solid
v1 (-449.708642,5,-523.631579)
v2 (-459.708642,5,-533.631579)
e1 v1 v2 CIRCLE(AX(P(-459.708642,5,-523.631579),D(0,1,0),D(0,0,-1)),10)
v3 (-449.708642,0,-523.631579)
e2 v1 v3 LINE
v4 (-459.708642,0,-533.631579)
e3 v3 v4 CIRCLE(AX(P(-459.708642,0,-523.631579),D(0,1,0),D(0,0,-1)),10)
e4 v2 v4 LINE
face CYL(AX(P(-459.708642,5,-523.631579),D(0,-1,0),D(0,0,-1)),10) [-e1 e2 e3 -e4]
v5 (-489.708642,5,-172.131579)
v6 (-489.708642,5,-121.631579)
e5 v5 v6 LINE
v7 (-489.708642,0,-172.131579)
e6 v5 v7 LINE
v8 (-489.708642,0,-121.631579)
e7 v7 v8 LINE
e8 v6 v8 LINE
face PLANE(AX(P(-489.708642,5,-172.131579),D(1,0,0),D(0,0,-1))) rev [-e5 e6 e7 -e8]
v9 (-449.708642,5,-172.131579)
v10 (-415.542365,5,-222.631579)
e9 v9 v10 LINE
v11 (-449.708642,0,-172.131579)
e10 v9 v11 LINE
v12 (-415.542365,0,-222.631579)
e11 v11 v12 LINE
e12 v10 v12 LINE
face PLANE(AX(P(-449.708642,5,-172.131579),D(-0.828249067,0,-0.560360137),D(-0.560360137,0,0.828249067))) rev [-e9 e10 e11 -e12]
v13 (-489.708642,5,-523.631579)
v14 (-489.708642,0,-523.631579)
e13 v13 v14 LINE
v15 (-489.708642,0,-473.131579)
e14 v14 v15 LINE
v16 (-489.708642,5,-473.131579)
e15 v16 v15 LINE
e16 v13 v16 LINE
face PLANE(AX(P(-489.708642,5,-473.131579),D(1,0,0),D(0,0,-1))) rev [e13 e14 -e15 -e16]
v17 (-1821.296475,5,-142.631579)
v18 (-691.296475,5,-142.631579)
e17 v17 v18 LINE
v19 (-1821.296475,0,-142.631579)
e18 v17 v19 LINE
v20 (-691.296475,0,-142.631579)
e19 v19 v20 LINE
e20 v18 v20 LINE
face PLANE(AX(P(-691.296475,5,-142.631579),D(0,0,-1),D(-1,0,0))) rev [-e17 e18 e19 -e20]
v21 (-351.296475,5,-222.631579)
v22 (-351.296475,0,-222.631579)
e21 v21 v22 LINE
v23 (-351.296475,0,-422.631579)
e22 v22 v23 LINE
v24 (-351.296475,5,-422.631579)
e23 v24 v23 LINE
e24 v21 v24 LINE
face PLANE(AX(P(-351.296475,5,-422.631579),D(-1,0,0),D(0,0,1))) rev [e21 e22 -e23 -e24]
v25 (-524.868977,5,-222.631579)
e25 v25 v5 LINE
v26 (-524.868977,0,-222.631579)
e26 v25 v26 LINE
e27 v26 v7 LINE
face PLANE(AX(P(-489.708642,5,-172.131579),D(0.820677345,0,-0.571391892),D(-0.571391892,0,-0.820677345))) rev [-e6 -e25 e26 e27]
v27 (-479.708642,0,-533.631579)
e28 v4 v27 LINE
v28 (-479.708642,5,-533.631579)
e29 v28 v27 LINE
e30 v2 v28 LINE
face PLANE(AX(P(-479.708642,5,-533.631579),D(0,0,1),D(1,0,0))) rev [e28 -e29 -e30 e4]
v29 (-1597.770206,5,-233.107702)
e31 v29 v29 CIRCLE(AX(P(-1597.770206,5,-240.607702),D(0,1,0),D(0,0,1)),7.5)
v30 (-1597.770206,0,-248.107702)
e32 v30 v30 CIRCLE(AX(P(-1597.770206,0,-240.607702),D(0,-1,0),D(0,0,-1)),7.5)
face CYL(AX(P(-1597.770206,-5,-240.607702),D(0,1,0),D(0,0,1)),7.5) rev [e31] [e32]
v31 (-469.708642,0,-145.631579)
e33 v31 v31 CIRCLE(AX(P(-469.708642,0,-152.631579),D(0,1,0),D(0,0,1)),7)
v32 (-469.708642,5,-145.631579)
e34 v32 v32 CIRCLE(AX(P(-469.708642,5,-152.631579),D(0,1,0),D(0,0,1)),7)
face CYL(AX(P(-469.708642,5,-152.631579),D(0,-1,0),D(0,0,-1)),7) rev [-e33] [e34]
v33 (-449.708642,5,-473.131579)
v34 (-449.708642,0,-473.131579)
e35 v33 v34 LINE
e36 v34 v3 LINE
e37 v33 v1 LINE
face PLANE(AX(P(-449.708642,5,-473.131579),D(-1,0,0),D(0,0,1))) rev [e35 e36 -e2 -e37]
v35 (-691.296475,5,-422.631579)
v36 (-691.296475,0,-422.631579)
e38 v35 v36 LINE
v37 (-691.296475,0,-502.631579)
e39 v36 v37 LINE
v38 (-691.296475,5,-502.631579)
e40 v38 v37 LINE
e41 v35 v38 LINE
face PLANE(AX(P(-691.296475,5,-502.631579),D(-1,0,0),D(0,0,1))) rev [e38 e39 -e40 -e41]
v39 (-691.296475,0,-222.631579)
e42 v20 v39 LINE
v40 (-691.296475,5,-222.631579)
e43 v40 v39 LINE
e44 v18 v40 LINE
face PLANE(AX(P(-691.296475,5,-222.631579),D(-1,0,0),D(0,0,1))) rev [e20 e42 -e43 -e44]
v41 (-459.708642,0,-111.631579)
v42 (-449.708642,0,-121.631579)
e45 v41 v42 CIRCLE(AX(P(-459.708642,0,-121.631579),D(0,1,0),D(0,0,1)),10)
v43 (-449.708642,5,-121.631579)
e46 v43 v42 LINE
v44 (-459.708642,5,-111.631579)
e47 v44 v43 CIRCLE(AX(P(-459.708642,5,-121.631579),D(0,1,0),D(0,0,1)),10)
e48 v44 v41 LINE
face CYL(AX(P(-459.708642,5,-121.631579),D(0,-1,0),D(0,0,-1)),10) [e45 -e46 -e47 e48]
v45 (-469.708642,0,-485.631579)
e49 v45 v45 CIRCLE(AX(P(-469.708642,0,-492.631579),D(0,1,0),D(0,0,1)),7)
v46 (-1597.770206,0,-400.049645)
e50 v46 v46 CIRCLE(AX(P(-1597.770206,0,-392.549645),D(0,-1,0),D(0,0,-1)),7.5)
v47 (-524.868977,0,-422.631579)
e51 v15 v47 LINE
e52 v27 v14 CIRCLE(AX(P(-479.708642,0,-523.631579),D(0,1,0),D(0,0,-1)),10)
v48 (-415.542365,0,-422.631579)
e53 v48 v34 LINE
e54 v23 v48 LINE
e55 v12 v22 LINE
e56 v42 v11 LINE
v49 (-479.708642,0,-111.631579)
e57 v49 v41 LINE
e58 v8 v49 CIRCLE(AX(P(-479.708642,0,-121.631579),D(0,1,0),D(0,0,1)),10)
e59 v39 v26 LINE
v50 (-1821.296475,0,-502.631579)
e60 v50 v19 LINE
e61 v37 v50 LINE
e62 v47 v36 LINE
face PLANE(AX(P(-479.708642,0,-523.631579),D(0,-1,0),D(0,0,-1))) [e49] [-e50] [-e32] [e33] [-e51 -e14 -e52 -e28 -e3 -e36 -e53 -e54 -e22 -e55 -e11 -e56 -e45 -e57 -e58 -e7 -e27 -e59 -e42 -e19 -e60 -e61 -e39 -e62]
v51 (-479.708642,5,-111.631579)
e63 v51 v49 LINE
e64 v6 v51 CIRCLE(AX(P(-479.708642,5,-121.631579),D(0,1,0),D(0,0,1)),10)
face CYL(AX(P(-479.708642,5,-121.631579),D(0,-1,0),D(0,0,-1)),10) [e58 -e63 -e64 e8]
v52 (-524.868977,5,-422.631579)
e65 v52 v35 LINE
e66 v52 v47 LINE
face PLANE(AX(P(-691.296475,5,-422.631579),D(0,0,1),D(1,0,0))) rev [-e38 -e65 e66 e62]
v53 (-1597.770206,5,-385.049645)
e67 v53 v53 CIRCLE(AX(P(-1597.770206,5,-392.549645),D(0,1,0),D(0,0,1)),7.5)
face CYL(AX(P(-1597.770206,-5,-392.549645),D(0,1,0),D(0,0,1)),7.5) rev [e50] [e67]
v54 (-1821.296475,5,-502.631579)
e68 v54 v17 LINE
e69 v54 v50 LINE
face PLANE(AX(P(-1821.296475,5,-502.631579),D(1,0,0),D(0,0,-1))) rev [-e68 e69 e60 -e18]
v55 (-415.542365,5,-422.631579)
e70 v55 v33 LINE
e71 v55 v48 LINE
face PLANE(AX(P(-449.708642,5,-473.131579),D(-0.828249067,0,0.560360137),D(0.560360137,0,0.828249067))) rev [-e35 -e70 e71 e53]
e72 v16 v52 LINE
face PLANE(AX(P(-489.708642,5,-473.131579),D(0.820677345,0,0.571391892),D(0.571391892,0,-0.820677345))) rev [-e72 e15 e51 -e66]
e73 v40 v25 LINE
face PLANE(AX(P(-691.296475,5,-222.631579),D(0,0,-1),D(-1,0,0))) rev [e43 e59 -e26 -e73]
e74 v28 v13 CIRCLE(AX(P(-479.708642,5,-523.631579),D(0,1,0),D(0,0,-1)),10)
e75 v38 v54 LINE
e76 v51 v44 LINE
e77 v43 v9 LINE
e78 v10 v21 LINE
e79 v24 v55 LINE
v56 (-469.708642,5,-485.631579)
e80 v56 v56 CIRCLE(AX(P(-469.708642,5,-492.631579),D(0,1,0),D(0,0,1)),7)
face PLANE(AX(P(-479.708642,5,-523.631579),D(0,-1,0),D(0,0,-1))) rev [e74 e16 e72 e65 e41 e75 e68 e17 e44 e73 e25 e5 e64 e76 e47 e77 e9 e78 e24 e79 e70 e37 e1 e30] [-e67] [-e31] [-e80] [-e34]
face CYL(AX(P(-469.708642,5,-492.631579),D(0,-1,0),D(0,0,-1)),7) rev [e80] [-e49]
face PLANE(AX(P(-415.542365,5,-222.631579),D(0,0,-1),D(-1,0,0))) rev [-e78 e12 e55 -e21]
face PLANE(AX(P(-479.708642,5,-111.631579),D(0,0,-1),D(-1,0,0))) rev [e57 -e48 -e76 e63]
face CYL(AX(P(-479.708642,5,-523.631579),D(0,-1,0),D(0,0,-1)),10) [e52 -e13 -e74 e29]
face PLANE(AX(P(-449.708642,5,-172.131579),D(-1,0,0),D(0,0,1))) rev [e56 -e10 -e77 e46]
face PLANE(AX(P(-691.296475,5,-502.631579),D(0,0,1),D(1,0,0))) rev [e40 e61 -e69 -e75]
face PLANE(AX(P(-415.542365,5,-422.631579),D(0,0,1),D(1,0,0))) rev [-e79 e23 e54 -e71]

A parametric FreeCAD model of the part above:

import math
import FreeCAD as App
import Part
import Sketcher

V = App.Vector

doc = App.newDocument("Part")
body = doc.addObject("PartDesign::Body", "Body")

# Sketch on XZ plane
sketch1 = body.newObject("Sketcher::SketchObject", "Sketch")
sketch1.AttachmentSupport = (doc.getObject("XZ_Plane"), [""])
sketch1.MapMode = "FlatFace"
sketch1.addGeometry(Part.LineSegment(V(-351, -423, 0), V(-416, -423, 0)), False)
sketch1.addGeometry(Part.LineSegment(V(-416, -423, 0), V(-450, -473, 0)), False)
sketch1.addGeometry(Part.LineSegment(V(-450, -473, 0), V(-450, -524, 0)), False)
sketch1.addGeometry(Part.ArcOfCircle(Part.Circle(V(-460, -524, 0), V(0, 0, 1), 10), math.radians(-90), math.radians(0)), False)
sketch1.addGeometry(Part.LineSegment(V(-460, -534, 0), V(-480, -534, 0)), False)
sketch1.addGeometry(Part.ArcOfCircle(Part.Circle(V(-480, -524, 0), V(0, 0, 1), 10), math.radians(180), math.radians(270)), False)
sketch1.addGeometry(Part.LineSegment(V(-490, -524, 0), V(-490, -473, 0)), False)
sketch1.addGeometry(Part.LineSegment(V(-490, -473, 0), V(-525, -423, 0)), False)
sketch1.addGeometry(Part.LineSegment(V(-525, -423, 0), V(-691, -423, 0)), False)
sketch1.addGeometry(Part.LineSegment(V(-691, -423, 0), V(-691, -503, 0)), False)
sketch1.addGeometry(Part.LineSegment(V(-691, -503, 0), V(-1821, -503, 0)), False)
sketch1.addGeometry(Part.LineSegment(V(-1821, -503, 0), V(-1821, -143, 0)), False)
sketch1.addGeometry(Part.LineSegment(V(-1821, -143, 0), V(-691, -143, 0)), False)
sketch1.addGeometry(Part.LineSegment(V(-691, -143, 0), V(-691, -223, 0)), False)
sketch1.addGeometry(Part.LineSegment(V(-691, -223, 0), V(-525, -223, 0)), False)
sketch1.addGeometry(Part.LineSegment(V(-525, -223, 0), V(-490, -172, 0)), False)
sketch1.addGeometry(Part.LineSegment(V(-490, -172, 0), V(-490, -122, 0)), False)
sketch1.addGeometry(Part.ArcOfCircle(Part.Circle(V(-480, -122, 0), V(0, 0, 1), 10), math.radians(90), math.radians(180)), False)
sketch1.addGeometry(Part.LineSegment(V(-480, -112, 0), V(-460, -112, 0)), False)
sketch1.addGeometry(Part.ArcOfCircle(Part.Circle(V(-460, -122, 0), V(0, 0, 1), 10), math.radians(0), math.radians(90)), False)
sketch1.addGeometry(Part.LineSegment(V(-450, -122, 0), V(-450, -172, 0)), False)
sketch1.addGeometry(Part.LineSegment(V(-450, -172, 0), V(-416, -223, 0)), False)
sketch1.addGeometry(Part.LineSegment(V(-416, -223, 0), V(-351, -223, 0)), False)
sketch1.addGeometry(Part.LineSegment(V(-351, -223, 0), V(-351, -423, 0)), False)
sketch1.addGeometry(Part.Circle(V(-470, -153, 0), V(0, 0, 1), 7), False)
sketch1.addGeometry(Part.Circle(V(-470, -493, 0), V(0, 0, 1), 7), False)
sketch1.addConstraint(Sketcher.Constraint("Coincident", 0, 2, 1, 1))
sketch1.addConstraint(Sketcher.Constraint("Coincident", 1, 2, 2, 1))
sketch1.addConstraint(Sketcher.Constraint("Tangent", 2, 2, 3, 2))
sketch1.addConstraint(Sketcher.Constraint("Tangent", 3, 1, 4, 1))
sketch1.addConstraint(Sketcher.Constraint("Tangent", 4, 2, 5, 2))
sketch1.addConstraint(Sketcher.Constraint("Tangent", 5, 1, 6, 1))
sketch1.addConstraint(Sketcher.Constraint("Coincident", 6, 2, 7, 1))
sketch1.addConstraint(Sketcher.Constraint("Coincident", 7, 2, 8, 1))
sketch1.addConstraint(Sketcher.Constraint("Coincident", 8, 2, 9, 1))
sketch1.addConstraint(Sketcher.Constraint("Coincident", 9, 2, 10, 1))
sketch1.addConstraint(Sketcher.Constraint("Coincident", 10, 2, 11, 1))
sketch1.addConstraint(Sketcher.Constraint("Coincident", 11, 2, 12, 1))
sketch1.addConstraint(Sketcher.Constraint("Coincident", 12, 2, 13, 1))
sketch1.addConstraint(Sketcher.Constraint("Coincident", 13, 2, 14, 1))
sketch1.addConstraint(Sketcher.Constraint("Coincident", 14, 2, 15, 1))
sketch1.addConstraint(Sketcher.Constraint("Coincident", 15, 2, 16, 1))
sketch1.addConstraint(Sketcher.Constraint("Tangent", 16, 2, 17, 2))
sketch1.addConstraint(Sketcher.Constraint("Tangent", 17, 1, 18, 1))
sketch1.addConstraint(Sketcher.Constraint("Tangent", 18, 2, 19, 2))
sketch1.addConstraint(Sketcher.Constraint("Tangent", 19, 1, 20, 1))
sketch1.addConstraint(Sketcher.Constraint("Coincident", 20, 2, 21, 1))
sketch1.addConstraint(Sketcher.Constraint("Coincident", 21, 2, 22, 1))
sketch1.addConstraint(Sketcher.Constraint("Coincident", 22, 2, 23, 1))
sketch1.addConstraint(Sketcher.Constraint("Coincident", 23, 2, 0, 1))
sketch1.addConstraint(Sketcher.Constraint("Horizontal", 0))
sketch1.addConstraint(Sketcher.Constraint("Vertical", 2))
sketch1.addConstraint(Sketcher.Constraint("Horizontal", 4))
sketch1.addConstraint(Sketcher.Constraint("Vertical", 6))
sketch1.addConstraint(Sketcher.Constraint("Horizontal", 8))
sketch1.addConstraint(Sketcher.Constraint("Vertical", 9))
sketch1.addConstraint(Sketcher.Constraint("Horizontal", 10))
sketch1.addConstraint(Sketcher.Constraint("Vertical", 11))
sketch1.addConstraint(Sketcher.Constraint("Horizontal", 12))
sketch1.addConstraint(Sketcher.Constraint("Vertical", 13))
sketch1.addConstraint(Sketcher.Constraint("Horizontal", 14))
sketch1.addConstraint(Sketcher.Constraint("Vertical", 16))
sketch1.addConstraint(Sketcher.Constraint("Horizontal", 18))
sketch1.addConstraint(Sketcher.Constraint("Vertical", 20))
sketch1.addConstraint(Sketcher.Constraint("Horizontal", 22))
sketch1.addConstraint(Sketcher.Constraint("Vertical", 23))
sketch1.addConstraint(Sketcher.Constraint("Equal", 3, 5))
sketch1.addConstraint(Sketcher.Constraint("Equal", 5, 17))
sketch1.addConstraint(Sketcher.Constraint("Equal", 17, 19))
sketch1.addConstraint(Sketcher.Constraint("Equal", 24, 25))
sketch1.addConstraint(Sketcher.Constraint("Horizontal", 1, 2, 6, 2))
sketch1.addConstraint(Sketcher.Constraint("Horizontal", 0, 2, 7, 2))
sketch1.addConstraint(Sketcher.Constraint("Horizontal", 15, 2, 20, 2))
sketch1.addConstraint(Sketcher.Constraint("Horizontal", 14, 2, 21, 2))
sketch1.addConstraint(Sketcher.Constraint("Vertical", 5, 3, 17, 3))
sketch1.addConstraint(Sketcher.Constraint("Vertical", 3, 3, 19, 3))
sketch1.addConstraint(Sketcher.Constraint("Vertical", 24, 3, 25, 3))
sketch1.addConstraint(Sketcher.Constraint("Vertical", 9, 2, 12, 2))
sketch1.addConstraint(Sketcher.Constraint("Vertical", 7, 2, 14, 2))
sketch1.addConstraint(Sketcher.Constraint("Vertical", 0, 2, 21, 2))
sketch1.addConstraint(Sketcher.Constraint("Equal", 9, 13))
sketch1.addConstraint(Sketcher.Constraint("Equal", 6, 16))
sketch1.addConstraint(Sketcher.Constraint("Equal", 7, 15))
sketch1.addConstraint(Sketcher.Constraint("Diameter", 24, 14.0))
sketch1.addConstraint(Sketcher.Constraint("Radius", 3, 10.0))
sketch1.addConstraint(Sketcher.Constraint("DistanceX", 4, 2, 4, 1, 20.0))
sketch1.addConstraint(Sketcher.Constraint("DistanceX", 10, 2, 10, 1, 1130.0))
sketch1.addConstraint(Sketcher.Constraint("DistanceY", 9, 2, 9, 1, 80.0))
sketch1.addConstraint(Sketcher.Constraint("DistanceY", 11, 1, 11, 2, 360.0))
sketch1.addConstraint(Sketcher.Constraint("DistanceY", 2, 2, 2, 1, 50.5))
sketch1.addConstraint(Sketcher.Constraint("DistanceY", 5, 3, 17, 3, 402.0))
sketch1.addConstraint(Sketcher.Constraint("DistanceX", 17, 3, 24, 3, 10.0))
sketch1.addConstraint(Sketcher.Constraint("DistanceY", 24, 3, 17, 3, 31.0))
sketch1.addConstraint(Sketcher.Constraint("DistanceY", 3, 3, 25, 3, 31.0))
sketch1.addConstraint(Sketcher.Constraint("DistanceX", 8, 2, 8, 1, 166.427498))
sketch1.addConstraint(Sketcher.Constraint("DistanceX", 0, 2, 0, 1, 64.24589))
sketch1.addConstraint(Sketcher.Constraint("DistanceY", 3, 3, -1, 1, 523.631579))
sketch1.addConstraint(Sketcher.Constraint("Distance", 1, 60.971997))
sketch1.addConstraint(Sketcher.Constraint("Distance", 7, 61.534536))
sketch1.addConstraint(Sketcher.Constraint("DistanceX", 3, 3, -1, 1, 459.708642))
pad1 = body.newObject("PartDesign::Pad", "Pad")
pad1.Profile = sketch1
pad1.Length = 5
pad1.Reversed = True

# Sketch on XZ plane
sketch2 = body.newObject("Sketcher::SketchObject", "Sketch001")
sketch2.AttachmentSupport = (doc.getObject("XZ_Plane"), [""])
sketch2.MapMode = "FlatFace"
sketch2.AttachmentOffset = App.Placement(V(0, 0, -5), App.Rotation())
sketch2.addGeometry(Part.Circle(V(-1598, -393, 0), V(0, 0, 1), 8), False)
sketch2.addGeometry(Part.Circle(V(-1598, -241, 0), V(0, 0, 1), 8), False)
sketch2.addConstraint(Sketcher.Constraint("Equal", 0, 1))
sketch2.addConstraint(Sketcher.Constraint("Vertical", 0, 3, 1, 3))
sketch2.addConstraint(Sketcher.Constraint("Diameter", 0, 15.0))
sketch2.addConstraint(Sketcher.Constraint("DistanceX", 0, 3, -1, 1, 1597.770206))
sketch2.addConstraint(Sketcher.Constraint("DistanceY", 0, 3, -1, 1, 392.549645))
sketch2.addConstraint(Sketcher.Constraint("DistanceY", 1, 3, -1, 1, 240.607702))
pocket1 = body.newObject("PartDesign::Pocket", "Pocket")
pocket1.Profile = sketch2
pocket1.Length = 10
pocket1.Reversed = True

doc.recompute()
